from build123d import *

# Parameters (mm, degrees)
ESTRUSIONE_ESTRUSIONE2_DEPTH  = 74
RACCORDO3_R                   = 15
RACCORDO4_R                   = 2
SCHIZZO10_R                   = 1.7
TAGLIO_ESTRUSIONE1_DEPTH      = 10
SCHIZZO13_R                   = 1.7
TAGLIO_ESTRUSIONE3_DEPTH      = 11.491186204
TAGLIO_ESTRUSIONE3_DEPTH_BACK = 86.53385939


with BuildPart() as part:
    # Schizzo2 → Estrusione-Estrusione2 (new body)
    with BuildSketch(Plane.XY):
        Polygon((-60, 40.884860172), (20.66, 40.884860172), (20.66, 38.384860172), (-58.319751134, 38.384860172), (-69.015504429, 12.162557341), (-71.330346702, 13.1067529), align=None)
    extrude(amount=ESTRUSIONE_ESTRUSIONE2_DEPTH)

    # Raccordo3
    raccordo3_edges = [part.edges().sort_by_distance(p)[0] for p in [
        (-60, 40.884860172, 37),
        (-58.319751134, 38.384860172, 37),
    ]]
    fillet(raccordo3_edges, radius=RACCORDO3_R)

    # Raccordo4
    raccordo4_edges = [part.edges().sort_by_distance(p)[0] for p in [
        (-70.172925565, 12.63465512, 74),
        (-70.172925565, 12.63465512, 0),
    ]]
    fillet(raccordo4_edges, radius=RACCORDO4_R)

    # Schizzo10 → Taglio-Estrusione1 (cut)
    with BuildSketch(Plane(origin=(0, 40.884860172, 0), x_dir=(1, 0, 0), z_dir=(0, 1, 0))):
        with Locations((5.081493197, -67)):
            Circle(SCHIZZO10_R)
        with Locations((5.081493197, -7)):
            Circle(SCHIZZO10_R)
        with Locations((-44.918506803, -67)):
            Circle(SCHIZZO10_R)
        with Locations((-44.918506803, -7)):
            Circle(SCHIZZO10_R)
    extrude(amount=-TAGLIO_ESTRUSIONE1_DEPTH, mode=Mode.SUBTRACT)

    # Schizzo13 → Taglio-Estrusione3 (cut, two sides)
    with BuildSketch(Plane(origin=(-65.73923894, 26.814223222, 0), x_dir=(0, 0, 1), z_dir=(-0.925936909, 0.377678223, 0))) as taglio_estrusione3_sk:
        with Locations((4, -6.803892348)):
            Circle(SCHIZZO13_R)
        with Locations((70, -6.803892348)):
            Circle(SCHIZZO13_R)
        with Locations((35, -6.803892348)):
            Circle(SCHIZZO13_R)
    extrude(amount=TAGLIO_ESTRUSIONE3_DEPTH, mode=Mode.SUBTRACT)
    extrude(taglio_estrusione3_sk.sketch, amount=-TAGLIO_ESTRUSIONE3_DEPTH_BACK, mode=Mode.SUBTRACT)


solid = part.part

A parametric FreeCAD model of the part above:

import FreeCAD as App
import Part
import Sketcher

V = App.Vector


def edges_at(feature, points):
    """Names of the edges that pass closest to the given points."""
    edges = feature.Shape.Edges
    near = lambda p: min(range(len(edges)), key=lambda i: edges[i].distToShape(Part.Vertex(*p))[0])
    return sorted({f"Edge{near(p) + 1}" for p in points})

doc = App.newDocument("Part")
body = doc.addObject("PartDesign::Body", "Body")

sketch1 = body.newObject("Sketcher::SketchObject", "Sketch")
sketch1.AttachmentSupport = (doc.getObject("XY_Plane"), [""])
sketch1.MapMode = "FlatFace"
sketch1.addGeometry([
    Part.LineSegment(V(20.7, 40.9, 0), V(-60, 40.9, 0)),
    Part.LineSegment(V(-60, 40.9, 0), V(-71.3, 13.1, 0)),
    Part.LineSegment(V(-71.3, 13.1, 0), V(-69, 12.2, 0)),
    Part.LineSegment(V(-69, 12.2, 0), V(-58.3, 38.4, 0)),
    Part.LineSegment(V(-58.3, 38.4, 0), V(20.7, 38.4, 0)),
    Part.LineSegment(V(20.7, 38.4, 0), V(20.7, 40.9, 0)),
], False)
sketch1.addConstraint([
    Sketcher.Constraint("Coincident", 0, 2, 1, 1),
    Sketcher.Constraint("Coincident", 1, 2, 2, 1),
    Sketcher.Constraint("Coincident", 2, 2, 3, 1),
    Sketcher.Constraint("Coincident", 3, 2, 4, 1),
    Sketcher.Constraint("Coincident", 4, 2, 5, 1),
    Sketcher.Constraint("Coincident", 5, 2, 0, 1),
    Sketcher.Constraint("Horizontal", 0),
    Sketcher.Constraint("Horizontal", 4),
    Sketcher.Constraint("Vertical", 5),
    Sketcher.Constraint("Perpendicular", 1, 2),
    Sketcher.Constraint("Perpendicular", 2, 3),
    Sketcher.Constraint("Distance", 1, 30.0),
    Sketcher.Constraint("DistanceY", 5, 1, 5, 2, 2.5),
    Sketcher.Constraint("DistanceX", 0, 2, -1, 1, 60.0),
    Sketcher.Constraint("Distance", 2, 2.5),
    Sketcher.Constraint("DistanceX", 0, 2, 0, 1, 80.66),
    Sketcher.Constraint("DistanceX", 4, 1, 4, 2, 78.979751),
    Sketcher.Constraint("DistanceY", -1, 1, 0, 2, 40.88486),
])
pad1 = body.newObject("PartDesign::Pad", "Pad")
pad1.Profile = sketch1
pad1.Length = 74
doc.recompute()

fillet = body.newObject("PartDesign::Fillet", "Fillet")
fillet.Base = (pad1, edges_at(pad1, [(-60, 40.885, 37), (-58.32, 38.385, 37)]))
fillet.Radius = 15
doc.recompute()

fillet2 = body.newObject("PartDesign::Fillet", "Fillet001")
fillet2.Base = (fillet, edges_at(fillet, [(-70.173, 12.635, 74), (-70.173, 12.635, 0)]))
fillet2.Radius = 2

sketch2 = body.newObject("Sketcher::SketchObject", "Sketch001")
sketch2.AttachmentSupport = (doc.getObject("XZ_Plane"), [""])
sketch2.MapMode = "FlatFace"
sketch2.AttachmentOffset = App.Placement(V(0, 0, -40.88486), App.Rotation())
sketch2.addGeometry([
    Part.Circle(V(5.1, 67, 0), V(0, 0, 1), 1.7),
    Part.Circle(V(5.1, 7, 0), V(0, 0, 1), 1.7),
    Part.Circle(V(-44.9, 67, 0), V(0, 0, 1), 1.7),
    Part.Circle(V(-44.9, 7, 0), V(0, 0, 1), 1.7),
], False)
sketch2.addConstraint([
    Sketcher.Constraint("Equal", 0, 1),
    Sketcher.Constraint("Equal", 1, 2),
    Sketcher.Constraint("Equal", 2, 3),
    Sketcher.Constraint("Horizontal", 0, 3, 2, 3),
    Sketcher.Constraint("Horizontal", 1, 3, 3, 3),
    Sketcher.Constraint("Vertical", 0, 3, 1, 3),
    Sketcher.Constraint("Vertical", 2, 3, 3, 3),
    Sketcher.Constraint("Diameter", 0, 3.4),
    Sketcher.Constraint("DistanceY", -1, 1, 0, 3, 67.0),
    Sketcher.Constraint("DistanceY", -1, 1, 1, 3, 7.0),
    Sketcher.Constraint("DistanceX", 2, 3, 0, 3, 50.0),
    Sketcher.Constraint("DistanceX", -1, 1, 0, 3, 5.081493),
])
pocket1 = body.newObject("PartDesign::Pocket", "Pocket")
pocket1.Profile = sketch2
pocket1.Length = 10
pocket1.Reversed = True

sketch3 = body.newObject("Sketcher::SketchObject", "Sketch002")
sketch3.Placement = App.Placement(V(-65.739239, 26.814223, 0), App.Rotation(V(0, 0, 1), V(0.377678223, 0.925936909, 0), V(-0.925936909, 0.377678223, 0), "ZXY"))
sketch3.addGeometry([
    Part.Circle(V(4, -6.8, 0), V(0, 0, 1), 1.7),
    Part.Circle(V(70, -6.8, 0), V(0, 0, 1), 1.7),
    Part.Circle(V(35, -6.8, 0), V(0, 0, 1), 1.7),
], False)
sketch3.addConstraint([
    Sketcher.Constraint("Equal", 0, 1),
    Sketcher.Constraint("Equal", 1, 2),
    Sketcher.Constraint("Horizontal", 0, 3, 1, 3),
    Sketcher.Constraint("Horizontal", 1, 3, 2, 3),
    Sketcher.Constraint("Diameter", 0, 3.4),
    Sketcher.Constraint("DistanceX", -1, 1, 0, 3, 4.0),
    Sketcher.Constraint("DistanceX", -1, 1, 1, 3, 70.0),
    Sketcher.Constraint("DistanceX", -1, 1, 2, 3, 35.0),
    Sketcher.Constraint("DistanceY", 0, 3, -1, 1, 6.803892),
])
pocket2 = body.newObject("PartDesign::Pocket", "Pocket001")
pocket2.Profile = sketch3
pocket2.Type = "ThroughAll"
pocket2.Midplane = True

doc.recompute()
